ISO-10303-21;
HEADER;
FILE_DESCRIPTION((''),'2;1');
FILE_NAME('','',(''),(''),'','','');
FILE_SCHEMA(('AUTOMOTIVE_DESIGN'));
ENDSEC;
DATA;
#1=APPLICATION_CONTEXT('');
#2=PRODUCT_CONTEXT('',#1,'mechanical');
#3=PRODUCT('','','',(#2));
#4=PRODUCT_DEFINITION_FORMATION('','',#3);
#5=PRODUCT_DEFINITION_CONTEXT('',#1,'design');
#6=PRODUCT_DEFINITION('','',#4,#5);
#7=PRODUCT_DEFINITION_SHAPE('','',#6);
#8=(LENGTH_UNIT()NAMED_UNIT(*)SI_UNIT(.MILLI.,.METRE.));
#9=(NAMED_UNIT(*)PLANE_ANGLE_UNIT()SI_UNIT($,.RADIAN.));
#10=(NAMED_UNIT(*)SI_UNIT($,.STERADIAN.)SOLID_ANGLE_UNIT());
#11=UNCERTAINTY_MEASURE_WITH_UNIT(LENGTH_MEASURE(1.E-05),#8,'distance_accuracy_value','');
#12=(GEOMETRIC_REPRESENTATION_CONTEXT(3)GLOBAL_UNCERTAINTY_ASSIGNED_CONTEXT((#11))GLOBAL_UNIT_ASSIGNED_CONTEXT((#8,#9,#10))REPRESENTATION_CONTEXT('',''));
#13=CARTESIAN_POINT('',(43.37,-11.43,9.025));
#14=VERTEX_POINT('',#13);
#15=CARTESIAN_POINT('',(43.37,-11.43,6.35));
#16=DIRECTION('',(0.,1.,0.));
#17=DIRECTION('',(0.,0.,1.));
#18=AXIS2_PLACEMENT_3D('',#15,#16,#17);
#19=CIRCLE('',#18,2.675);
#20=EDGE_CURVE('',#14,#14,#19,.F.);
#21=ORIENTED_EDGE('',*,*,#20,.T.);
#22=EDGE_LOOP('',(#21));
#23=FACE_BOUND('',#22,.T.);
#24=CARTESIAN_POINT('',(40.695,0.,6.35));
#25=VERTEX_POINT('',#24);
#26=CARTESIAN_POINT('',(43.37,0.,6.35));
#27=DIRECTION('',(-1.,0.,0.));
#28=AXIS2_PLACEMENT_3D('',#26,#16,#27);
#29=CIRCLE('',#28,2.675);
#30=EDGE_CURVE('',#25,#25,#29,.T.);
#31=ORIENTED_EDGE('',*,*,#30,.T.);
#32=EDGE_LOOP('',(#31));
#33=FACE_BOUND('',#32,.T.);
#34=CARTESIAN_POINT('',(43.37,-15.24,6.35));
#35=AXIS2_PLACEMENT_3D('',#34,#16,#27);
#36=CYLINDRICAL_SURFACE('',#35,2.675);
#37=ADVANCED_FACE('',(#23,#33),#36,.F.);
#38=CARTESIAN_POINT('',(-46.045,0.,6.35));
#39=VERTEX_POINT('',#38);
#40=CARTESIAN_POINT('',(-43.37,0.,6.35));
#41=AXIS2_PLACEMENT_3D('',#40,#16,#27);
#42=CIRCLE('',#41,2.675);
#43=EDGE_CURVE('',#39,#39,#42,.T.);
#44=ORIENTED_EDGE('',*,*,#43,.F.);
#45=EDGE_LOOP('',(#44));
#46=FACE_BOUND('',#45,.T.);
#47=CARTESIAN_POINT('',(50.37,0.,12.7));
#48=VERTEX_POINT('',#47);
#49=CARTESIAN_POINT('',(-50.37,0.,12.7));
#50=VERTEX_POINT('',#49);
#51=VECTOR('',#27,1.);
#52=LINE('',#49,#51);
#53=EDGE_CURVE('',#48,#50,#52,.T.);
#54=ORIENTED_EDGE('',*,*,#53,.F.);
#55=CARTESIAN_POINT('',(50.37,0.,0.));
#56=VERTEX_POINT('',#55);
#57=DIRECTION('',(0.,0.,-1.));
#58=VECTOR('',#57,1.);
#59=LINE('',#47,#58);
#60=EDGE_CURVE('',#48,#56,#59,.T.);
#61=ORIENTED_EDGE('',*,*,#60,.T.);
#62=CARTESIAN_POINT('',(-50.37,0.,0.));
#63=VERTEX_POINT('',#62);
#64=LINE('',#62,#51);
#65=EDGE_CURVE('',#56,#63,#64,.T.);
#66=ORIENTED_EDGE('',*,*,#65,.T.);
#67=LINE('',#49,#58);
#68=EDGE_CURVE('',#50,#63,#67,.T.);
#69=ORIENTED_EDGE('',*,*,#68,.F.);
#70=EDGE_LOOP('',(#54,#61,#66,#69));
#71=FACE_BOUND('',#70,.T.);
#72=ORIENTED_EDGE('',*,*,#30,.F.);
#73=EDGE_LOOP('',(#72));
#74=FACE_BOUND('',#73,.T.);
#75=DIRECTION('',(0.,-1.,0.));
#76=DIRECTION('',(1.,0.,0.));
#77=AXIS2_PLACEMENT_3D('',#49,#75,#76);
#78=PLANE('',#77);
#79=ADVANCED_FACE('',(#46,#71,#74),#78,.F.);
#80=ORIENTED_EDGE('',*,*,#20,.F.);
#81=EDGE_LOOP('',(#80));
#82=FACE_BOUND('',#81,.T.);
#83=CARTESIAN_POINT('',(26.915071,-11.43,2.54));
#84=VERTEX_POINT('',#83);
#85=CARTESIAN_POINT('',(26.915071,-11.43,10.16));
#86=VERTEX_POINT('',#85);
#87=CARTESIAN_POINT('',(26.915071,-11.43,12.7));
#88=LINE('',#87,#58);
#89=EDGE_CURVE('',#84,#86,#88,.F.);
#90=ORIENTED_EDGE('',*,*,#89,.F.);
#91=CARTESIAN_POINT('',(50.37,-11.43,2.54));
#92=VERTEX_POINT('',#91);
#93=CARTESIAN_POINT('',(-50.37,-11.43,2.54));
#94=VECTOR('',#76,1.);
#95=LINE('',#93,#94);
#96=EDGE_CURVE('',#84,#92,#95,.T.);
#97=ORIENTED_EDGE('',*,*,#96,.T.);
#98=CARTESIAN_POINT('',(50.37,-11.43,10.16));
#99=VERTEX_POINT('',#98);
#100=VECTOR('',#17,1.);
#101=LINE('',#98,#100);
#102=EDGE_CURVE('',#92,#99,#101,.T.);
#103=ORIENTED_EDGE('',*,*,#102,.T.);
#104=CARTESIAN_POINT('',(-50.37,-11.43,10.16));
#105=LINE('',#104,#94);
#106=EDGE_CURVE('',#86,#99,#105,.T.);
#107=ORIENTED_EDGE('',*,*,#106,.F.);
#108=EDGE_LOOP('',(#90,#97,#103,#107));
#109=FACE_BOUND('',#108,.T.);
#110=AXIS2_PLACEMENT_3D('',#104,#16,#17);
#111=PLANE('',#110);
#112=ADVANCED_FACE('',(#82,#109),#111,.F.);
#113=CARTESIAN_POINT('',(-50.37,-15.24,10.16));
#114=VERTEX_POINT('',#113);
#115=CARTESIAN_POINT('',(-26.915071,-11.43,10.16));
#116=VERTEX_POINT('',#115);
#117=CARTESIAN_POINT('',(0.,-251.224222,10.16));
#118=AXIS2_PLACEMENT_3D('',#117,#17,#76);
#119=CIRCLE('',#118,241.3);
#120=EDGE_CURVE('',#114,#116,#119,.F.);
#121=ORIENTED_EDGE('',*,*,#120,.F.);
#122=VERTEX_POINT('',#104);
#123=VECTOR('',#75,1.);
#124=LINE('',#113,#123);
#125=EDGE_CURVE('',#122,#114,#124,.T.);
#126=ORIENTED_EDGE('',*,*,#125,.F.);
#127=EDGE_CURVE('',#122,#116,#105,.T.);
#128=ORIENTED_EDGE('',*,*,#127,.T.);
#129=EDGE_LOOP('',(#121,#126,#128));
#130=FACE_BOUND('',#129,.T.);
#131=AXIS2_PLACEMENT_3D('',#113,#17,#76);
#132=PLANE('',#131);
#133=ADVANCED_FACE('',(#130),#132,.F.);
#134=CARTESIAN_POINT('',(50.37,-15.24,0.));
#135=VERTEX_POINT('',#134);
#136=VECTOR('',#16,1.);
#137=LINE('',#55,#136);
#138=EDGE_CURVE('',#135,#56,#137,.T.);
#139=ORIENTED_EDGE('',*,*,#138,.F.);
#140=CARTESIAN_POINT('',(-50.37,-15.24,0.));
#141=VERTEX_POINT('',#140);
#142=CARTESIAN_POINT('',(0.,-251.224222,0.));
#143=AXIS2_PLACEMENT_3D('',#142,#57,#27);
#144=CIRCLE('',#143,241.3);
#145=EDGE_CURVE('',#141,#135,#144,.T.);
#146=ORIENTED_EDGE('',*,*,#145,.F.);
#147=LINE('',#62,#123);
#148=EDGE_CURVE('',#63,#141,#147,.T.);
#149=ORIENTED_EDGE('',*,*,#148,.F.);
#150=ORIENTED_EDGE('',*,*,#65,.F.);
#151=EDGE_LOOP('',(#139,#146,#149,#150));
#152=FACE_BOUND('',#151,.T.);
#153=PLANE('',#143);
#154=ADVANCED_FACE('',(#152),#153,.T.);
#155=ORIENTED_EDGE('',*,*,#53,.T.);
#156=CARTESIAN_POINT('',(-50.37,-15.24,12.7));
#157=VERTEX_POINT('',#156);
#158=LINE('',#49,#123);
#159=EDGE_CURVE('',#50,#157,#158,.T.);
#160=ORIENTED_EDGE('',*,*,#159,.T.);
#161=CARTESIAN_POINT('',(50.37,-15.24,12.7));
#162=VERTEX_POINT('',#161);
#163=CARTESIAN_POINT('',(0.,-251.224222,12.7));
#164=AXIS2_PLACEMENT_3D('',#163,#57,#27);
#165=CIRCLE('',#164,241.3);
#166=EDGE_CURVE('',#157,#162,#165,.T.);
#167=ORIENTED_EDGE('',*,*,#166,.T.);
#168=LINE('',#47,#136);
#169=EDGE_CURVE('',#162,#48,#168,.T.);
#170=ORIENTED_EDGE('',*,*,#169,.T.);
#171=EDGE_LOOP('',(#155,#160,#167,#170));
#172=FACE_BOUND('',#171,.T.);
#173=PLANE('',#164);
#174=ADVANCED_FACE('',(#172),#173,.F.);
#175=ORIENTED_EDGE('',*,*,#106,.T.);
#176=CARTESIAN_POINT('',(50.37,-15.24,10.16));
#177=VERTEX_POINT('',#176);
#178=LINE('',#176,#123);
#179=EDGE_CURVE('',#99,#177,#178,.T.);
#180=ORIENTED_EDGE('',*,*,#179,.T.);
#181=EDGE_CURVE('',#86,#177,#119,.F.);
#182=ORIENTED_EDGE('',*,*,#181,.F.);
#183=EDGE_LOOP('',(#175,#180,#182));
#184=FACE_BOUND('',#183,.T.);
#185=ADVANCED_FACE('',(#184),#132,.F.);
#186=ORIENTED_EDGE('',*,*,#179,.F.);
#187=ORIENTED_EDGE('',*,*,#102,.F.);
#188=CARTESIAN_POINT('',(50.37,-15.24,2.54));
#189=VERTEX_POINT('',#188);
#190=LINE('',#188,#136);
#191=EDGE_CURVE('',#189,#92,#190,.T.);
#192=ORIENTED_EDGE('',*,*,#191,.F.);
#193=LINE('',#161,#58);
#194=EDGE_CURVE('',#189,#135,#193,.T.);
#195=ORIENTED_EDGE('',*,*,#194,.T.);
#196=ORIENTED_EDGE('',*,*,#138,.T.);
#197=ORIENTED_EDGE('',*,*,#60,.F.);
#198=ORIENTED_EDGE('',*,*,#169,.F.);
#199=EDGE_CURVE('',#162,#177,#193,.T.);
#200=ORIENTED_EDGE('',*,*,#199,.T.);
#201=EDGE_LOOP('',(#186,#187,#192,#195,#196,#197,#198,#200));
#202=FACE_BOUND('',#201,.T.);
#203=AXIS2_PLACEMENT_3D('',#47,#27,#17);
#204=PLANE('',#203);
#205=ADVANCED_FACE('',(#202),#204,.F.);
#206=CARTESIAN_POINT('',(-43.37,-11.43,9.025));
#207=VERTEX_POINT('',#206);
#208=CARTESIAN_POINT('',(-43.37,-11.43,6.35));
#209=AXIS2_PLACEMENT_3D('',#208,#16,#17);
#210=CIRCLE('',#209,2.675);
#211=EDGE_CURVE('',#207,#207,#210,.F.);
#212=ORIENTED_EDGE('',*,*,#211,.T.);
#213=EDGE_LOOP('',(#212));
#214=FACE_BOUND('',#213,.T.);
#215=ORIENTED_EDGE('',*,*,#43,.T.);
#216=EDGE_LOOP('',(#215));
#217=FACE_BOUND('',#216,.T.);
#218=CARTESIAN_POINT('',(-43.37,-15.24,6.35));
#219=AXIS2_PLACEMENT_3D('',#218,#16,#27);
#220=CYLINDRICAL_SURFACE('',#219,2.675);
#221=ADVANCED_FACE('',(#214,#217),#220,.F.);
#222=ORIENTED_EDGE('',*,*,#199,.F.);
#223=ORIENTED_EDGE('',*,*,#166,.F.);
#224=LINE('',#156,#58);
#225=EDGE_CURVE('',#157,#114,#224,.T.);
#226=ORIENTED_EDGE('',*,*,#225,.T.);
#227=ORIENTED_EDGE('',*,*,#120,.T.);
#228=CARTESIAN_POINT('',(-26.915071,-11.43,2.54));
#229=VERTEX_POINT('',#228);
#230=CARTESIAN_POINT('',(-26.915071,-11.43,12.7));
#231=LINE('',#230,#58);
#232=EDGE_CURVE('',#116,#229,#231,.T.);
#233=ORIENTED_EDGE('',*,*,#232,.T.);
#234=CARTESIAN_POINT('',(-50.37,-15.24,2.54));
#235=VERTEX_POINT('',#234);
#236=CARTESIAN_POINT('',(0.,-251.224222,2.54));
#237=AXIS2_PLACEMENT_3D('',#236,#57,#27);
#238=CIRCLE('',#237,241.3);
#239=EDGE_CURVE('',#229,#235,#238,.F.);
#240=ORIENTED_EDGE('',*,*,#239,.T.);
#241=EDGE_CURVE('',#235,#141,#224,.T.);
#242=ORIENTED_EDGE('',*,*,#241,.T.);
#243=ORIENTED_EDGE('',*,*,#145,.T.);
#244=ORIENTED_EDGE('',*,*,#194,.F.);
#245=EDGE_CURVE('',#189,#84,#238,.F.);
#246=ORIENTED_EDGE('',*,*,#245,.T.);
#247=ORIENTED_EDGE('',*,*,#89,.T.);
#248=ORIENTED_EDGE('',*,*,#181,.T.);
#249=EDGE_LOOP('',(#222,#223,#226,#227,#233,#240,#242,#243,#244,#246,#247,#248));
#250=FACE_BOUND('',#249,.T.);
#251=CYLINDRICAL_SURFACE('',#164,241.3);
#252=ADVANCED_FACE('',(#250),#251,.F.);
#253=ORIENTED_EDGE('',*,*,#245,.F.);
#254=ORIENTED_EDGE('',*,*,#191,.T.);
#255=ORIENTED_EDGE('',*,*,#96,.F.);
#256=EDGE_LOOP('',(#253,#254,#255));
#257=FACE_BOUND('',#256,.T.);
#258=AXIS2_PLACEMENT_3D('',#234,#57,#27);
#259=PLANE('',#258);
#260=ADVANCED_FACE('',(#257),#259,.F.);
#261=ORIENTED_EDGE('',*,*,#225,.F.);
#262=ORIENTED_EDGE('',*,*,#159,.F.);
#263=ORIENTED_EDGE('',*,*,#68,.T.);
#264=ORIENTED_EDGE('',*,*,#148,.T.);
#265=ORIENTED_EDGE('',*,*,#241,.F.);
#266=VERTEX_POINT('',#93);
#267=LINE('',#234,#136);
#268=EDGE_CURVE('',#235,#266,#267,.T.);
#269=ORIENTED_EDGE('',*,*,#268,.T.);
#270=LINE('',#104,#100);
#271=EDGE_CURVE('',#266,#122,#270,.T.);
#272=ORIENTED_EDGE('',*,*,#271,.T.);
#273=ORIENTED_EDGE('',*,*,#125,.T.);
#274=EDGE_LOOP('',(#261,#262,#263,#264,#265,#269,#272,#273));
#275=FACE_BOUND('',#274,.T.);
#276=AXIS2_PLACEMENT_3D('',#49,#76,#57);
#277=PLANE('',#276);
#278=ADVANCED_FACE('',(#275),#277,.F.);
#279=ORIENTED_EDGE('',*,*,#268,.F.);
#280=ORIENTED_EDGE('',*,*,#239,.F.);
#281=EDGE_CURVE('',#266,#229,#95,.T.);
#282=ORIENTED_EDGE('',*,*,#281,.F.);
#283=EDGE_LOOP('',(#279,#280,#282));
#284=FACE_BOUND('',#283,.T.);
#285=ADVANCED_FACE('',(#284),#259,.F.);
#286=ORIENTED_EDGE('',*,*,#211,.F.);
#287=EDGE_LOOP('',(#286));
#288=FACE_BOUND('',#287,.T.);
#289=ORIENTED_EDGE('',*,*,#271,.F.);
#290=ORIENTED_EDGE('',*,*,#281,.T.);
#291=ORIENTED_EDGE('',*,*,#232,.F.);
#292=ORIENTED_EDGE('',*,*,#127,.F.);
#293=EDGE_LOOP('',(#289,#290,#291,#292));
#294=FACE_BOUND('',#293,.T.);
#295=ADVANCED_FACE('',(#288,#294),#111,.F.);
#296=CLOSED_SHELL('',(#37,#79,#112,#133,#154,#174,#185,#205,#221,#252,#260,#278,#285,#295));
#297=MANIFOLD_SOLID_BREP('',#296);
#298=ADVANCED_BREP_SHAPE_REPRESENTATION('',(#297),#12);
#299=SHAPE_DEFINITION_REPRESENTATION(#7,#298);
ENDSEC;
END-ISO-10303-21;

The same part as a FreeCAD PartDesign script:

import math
import FreeCAD as App
import Part
import Sketcher
from FreeCAD import Vector
Q = App.Units.Quantity

doc = App.newDocument("Part")
params = doc.addObject("Spreadsheet::Sheet", "Params")
for row, (alias, value) in enumerate([
    ("sketch1_radius", "9.5 in"),
    ("sketch1_height", "0.6 in"),
    ("pad1_length", "0.5 in"),
    ("sketch3_height", "0.3 in"),
    ("sketch3_width", "0.15 in"),
], start=1):
    params.set(f"A{row}", alias)
    params.set(f"B{row}", "=" + value)
    params.setAlias(f"B{row}", alias)

body = doc.addObject("PartDesign::Body", "Body")

# Sketch on XY plane
sketch1 = doc.addObject("Sketcher::SketchObject", "Sketch")
body.addObject(sketch1)
sketch1.AttachmentSupport = (doc.XY_Plane, [""])
sketch1.MapMode = "FlatFace"
sketch1.addGeometry([
    Part.LineSegment(Vector(50.37, 0, 0), Vector(-50.37, 0, 0)),
    Part.LineSegment(Vector(-50.37, 0, 0), Vector(-50.37, -15.24, 0)),
    Part.ArcOfCircle(Part.Circle(Vector(0, -251.224222, 0), Vector(0, 0, 1), 241.3), math.radians(77.951225), math.radians(102.048775)),
    Part.LineSegment(Vector(50.37, -15.24, 0), Vector(50.37, 0, 0)),
], False)
sketch1.addConstraint([
    Sketcher.Constraint("Coincident", 0, 2, 1, 1),
    Sketcher.Constraint("Coincident", 1, 2, 2, 2),
    Sketcher.Constraint("Coincident", 2, 1, 3, 1),
    Sketcher.Constraint("Coincident", 3, 2, 0, 1),
    Sketcher.Constraint("Horizontal", 0),
    Sketcher.Constraint("Vertical", 1),
    Sketcher.Constraint("Vertical", 3),
    Sketcher.Constraint("Symmetric", 0, 2, 3, 2, -1, 1),
    Sketcher.Constraint("PointOnObject", 2, 3, -2),
    Sketcher.Constraint("Radius", 2, Q("9.5 in")),
    Sketcher.Constraint("DistanceY", 1, 2, 1, 1, Q("0.6 in")),
    Sketcher.Constraint("DistanceX", 0, 2, 0, 1, 100.74),
])
sketch1.setExpression("Constraints[9]", "Params.sketch1_radius")
sketch1.setExpression("Constraints[10]", "Params.sketch1_height")
pad1 = doc.addObject("PartDesign::Pad", "Pad")
body.addObject(pad1)
pad1.Profile = sketch1
pad1.setExpression("Length", "Params.pad1_length")

# Sketch on XZ plane
sketch2 = doc.addObject("Sketcher::SketchObject", "Sketch001")
body.addObject(sketch2)
sketch2.AttachmentSupport = (doc.XZ_Plane, [""])
sketch2.MapMode = "FlatFace"
sketch2.addGeometry([
    Part.Circle(Vector(-43.37, 6.35, 0), Vector(0, 0, 1), 2.675),
    Part.Circle(Vector(43.37, 6.35, 0), Vector(0, 0, 1), 2.675),
], False)
sketch2.addConstraint([
    Sketcher.Constraint("Equal", 0, 1),
    Sketcher.Constraint("Symmetric", 0, 3, 1, 3, -2),
    Sketcher.Constraint("Diameter", 0, 5.35),
    Sketcher.Constraint("DistanceY", -1, 1, 0, 3, Q("0.25 in")),
    Sketcher.Constraint("DistanceX", 0, 3, -1, 1, 43.37),
])
pocket1 = doc.addObject("PartDesign::Pocket", "Pocket")
body.addObject(pocket1)
pocket1.Profile = sketch2
pocket1.Type = "ThroughAll"
pocket1.Reversed = True

# Sketch on YZ plane
sketch3 = doc.addObject("Sketcher::SketchObject", "Sketch002")
body.addObject(sketch3)
sketch3.AttachmentSupport = (doc.YZ_Plane, [""])
sketch3.MapMode = "FlatFace"
sketch3.AttachmentOffset = App.Placement(Vector(0, 0, 50.37), App.Rotation())
sketch3.addGeometry([
    Part.LineSegment(Vector(-11.43, 10.16, 0), Vector(-15.24, 10.16, 0)),
    Part.LineSegment(Vector(-15.24, 10.16, 0), Vector(-15.24, 2.54, 0)),
    Part.LineSegment(Vector(-15.24, 2.54, 0), Vector(-11.43, 2.54, 0)),
    Part.LineSegment(Vector(-11.43, 2.54, 0), Vector(-11.43, 10.16, 0)),
], False)
sketch3.addConstraint([
    Sketcher.Constraint("Coincident", 0, 2, 1, 1),
    Sketcher.Constraint("Coincident", 1, 2, 2, 1),
    Sketcher.Constraint("Coincident", 2, 2, 3, 1),
    Sketcher.Constraint("Coincident", 3, 2, 0, 1),
    Sketcher.Constraint("Horizontal", 0),
    Sketcher.Constraint("Vertical", 1),
    Sketcher.Constraint("Horizontal", 2),
    Sketcher.Constraint("Vertical", 3),
    Sketcher.Constraint("DistanceY", 1, 2, 1, 1, Q("0.3 in")),
    Sketcher.Constraint("DistanceX", 0, 2, 0, 1, Q("0.15 in")),
    Sketcher.Constraint("DistanceX", 0, 2, -1, 1, Q("0.6 in")),
    Sketcher.Constraint("DistanceY", -1, 1, 0, 2, Q("0.4 in")),
])
sketch3.setExpression("Constraints[8]", "Params.sketch3_height")
sketch3.setExpression("Constraints[9]", "Params.sketch3_width")
pocket2 = doc.addObject("PartDesign::Pocket", "Pocket001")
body.addObject(pocket2)
pocket2.Profile = sketch3
pocket2.Type = "ThroughAll"

doc.recompute()
